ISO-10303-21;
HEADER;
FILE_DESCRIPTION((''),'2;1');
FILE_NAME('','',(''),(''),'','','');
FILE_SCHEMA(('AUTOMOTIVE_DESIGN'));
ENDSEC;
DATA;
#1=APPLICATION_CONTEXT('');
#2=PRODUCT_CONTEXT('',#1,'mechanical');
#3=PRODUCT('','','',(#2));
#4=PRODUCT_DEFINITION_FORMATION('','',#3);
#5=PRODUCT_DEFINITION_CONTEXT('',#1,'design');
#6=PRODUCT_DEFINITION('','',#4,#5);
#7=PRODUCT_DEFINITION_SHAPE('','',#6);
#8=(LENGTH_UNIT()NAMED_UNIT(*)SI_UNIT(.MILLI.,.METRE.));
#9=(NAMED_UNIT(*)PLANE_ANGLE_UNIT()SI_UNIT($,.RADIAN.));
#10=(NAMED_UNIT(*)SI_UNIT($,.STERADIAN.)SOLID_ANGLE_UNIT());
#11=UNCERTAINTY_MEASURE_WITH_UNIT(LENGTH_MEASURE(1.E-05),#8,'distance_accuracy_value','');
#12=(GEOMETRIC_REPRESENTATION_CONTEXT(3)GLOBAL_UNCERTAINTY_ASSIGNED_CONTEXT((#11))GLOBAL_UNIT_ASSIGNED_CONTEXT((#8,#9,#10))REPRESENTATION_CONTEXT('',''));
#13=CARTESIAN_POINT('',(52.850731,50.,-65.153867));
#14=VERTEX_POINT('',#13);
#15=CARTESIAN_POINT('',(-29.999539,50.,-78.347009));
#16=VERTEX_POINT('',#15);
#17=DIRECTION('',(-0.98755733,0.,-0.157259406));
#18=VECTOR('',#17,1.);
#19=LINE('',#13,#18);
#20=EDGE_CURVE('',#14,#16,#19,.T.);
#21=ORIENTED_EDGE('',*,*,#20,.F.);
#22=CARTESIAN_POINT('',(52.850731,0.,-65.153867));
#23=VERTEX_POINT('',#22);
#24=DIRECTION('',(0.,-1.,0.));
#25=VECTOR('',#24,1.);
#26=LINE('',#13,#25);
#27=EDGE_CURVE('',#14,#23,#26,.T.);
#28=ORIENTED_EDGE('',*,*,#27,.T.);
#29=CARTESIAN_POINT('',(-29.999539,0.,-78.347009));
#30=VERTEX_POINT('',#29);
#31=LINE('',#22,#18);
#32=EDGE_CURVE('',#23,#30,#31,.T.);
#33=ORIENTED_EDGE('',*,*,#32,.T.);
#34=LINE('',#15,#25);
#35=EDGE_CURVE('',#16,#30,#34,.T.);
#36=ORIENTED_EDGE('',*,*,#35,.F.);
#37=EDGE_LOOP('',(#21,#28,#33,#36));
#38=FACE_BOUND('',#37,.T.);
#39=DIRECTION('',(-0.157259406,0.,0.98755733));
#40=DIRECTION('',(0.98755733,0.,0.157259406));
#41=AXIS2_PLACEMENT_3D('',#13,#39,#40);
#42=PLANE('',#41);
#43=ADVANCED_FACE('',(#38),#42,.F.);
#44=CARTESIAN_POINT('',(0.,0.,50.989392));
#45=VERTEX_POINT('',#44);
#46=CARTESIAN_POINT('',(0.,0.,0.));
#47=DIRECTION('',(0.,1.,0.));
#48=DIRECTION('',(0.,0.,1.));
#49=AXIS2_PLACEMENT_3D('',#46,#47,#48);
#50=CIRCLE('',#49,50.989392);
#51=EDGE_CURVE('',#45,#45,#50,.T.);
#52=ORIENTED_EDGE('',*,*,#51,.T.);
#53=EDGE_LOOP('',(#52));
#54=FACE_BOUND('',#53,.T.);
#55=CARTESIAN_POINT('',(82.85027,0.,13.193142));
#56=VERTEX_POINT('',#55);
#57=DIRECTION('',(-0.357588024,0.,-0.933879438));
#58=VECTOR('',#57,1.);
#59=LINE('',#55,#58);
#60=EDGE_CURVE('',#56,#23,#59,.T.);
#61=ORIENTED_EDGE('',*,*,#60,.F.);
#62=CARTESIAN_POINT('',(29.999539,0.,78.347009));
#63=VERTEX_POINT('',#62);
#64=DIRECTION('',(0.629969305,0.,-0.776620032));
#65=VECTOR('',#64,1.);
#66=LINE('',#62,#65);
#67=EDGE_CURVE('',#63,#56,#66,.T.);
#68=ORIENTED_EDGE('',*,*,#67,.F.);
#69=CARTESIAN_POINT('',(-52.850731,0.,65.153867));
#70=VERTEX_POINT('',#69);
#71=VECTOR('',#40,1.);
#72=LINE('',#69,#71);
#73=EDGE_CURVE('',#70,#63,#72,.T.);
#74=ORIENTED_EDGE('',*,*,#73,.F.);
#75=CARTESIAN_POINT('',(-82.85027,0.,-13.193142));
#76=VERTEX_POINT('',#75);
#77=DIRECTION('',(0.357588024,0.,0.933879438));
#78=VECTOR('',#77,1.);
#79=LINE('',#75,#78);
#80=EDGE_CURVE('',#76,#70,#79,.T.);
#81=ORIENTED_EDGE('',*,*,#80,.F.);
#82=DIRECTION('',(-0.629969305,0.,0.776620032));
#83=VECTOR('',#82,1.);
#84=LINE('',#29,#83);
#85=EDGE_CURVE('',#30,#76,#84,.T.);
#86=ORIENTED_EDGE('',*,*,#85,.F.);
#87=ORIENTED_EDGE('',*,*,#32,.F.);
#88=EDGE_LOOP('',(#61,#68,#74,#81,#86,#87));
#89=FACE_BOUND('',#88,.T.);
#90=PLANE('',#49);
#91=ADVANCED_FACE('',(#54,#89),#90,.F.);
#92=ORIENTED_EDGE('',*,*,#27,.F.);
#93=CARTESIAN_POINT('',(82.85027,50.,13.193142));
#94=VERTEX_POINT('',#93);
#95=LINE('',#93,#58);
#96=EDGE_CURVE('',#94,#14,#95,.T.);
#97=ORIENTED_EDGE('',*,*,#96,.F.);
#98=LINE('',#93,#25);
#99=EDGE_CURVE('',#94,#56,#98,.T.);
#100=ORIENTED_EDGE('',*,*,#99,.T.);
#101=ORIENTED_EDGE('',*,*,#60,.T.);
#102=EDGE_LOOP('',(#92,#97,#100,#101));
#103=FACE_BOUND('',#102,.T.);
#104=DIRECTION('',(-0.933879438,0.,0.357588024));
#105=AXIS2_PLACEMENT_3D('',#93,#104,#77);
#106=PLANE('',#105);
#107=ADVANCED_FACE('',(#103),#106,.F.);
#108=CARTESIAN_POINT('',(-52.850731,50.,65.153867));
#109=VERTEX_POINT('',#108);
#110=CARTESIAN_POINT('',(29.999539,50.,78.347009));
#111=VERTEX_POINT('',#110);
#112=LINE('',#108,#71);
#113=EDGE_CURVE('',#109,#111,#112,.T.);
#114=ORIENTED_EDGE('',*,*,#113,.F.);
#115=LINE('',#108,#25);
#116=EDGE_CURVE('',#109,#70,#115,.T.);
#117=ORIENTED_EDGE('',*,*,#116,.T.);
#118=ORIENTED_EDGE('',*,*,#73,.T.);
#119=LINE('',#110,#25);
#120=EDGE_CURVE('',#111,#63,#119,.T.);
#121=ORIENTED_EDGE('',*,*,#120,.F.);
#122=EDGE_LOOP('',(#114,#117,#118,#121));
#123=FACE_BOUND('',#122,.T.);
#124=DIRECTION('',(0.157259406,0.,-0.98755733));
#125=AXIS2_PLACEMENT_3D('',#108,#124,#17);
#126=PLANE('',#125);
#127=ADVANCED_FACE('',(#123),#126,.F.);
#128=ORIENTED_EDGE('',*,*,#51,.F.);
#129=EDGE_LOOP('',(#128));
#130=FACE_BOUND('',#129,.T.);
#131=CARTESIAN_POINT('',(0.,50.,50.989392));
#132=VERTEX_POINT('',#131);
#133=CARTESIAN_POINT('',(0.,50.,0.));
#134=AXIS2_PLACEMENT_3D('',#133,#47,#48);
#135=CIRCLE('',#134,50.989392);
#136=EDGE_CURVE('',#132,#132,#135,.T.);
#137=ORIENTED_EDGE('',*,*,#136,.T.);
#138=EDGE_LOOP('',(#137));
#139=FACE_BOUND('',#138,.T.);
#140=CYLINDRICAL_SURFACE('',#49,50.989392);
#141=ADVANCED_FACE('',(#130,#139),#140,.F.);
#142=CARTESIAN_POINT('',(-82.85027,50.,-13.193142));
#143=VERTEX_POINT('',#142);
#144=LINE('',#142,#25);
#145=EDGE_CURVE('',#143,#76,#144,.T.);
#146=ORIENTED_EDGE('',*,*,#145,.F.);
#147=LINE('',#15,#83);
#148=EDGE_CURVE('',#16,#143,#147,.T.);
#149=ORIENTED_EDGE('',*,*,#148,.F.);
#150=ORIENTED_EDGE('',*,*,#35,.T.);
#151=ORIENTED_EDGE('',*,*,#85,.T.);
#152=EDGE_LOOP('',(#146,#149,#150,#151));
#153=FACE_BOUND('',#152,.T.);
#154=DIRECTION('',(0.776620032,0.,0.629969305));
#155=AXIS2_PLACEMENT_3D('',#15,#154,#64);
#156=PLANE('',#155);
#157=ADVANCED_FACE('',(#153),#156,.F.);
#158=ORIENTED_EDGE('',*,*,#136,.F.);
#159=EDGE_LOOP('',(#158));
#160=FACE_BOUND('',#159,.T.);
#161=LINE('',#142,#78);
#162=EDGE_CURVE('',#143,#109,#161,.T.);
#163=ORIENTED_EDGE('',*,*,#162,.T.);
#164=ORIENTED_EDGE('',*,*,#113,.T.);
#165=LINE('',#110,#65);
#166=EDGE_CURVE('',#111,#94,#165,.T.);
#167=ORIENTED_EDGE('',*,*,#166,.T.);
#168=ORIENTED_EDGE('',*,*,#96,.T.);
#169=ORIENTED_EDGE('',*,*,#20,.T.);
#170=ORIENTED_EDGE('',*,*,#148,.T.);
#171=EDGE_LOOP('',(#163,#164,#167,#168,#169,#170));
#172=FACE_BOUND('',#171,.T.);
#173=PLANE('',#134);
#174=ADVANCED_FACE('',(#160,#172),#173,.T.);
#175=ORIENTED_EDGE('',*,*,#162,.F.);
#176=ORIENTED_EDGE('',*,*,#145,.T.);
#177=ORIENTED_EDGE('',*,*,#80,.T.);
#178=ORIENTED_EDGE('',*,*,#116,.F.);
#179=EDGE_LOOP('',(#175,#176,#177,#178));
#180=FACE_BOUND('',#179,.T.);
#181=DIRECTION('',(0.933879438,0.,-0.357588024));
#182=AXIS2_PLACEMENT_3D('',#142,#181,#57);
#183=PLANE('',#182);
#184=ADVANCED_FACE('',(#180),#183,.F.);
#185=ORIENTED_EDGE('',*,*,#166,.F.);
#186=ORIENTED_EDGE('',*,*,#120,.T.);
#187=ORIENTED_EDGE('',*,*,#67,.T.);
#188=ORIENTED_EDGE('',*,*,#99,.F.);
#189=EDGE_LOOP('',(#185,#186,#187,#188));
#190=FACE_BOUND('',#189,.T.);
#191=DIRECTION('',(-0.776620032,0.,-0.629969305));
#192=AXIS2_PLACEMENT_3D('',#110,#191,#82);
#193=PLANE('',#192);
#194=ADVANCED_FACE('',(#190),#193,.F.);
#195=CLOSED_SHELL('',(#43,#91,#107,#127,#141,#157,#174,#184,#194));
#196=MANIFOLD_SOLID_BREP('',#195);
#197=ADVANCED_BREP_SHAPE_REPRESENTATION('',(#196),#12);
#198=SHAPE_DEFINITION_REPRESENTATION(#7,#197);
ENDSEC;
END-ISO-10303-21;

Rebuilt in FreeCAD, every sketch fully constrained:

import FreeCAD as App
import Part
import Sketcher

V = App.Vector
Q = App.Units.Quantity


def add_polygon(sketch, points):
    """Adds a closed chain of lines whose ends are joined by coincident constraints."""
    first, n = sketch.GeometryCount, len(points)
    for a, b in zip(points, points[1:] + points[:1]):
        sketch.addGeometry(Part.LineSegment(App.Vector(*a, 0), App.Vector(*b, 0)), False)
    for i in range(n):
        sketch.addConstraint(Sketcher.Constraint("Coincident", first + i, 2, first + (i + 1) % n, 1))

doc = App.newDocument("Part")
body = doc.addObject("PartDesign::Body", "Body")

# Sketch on XZ plane
sketch1 = body.newObject("Sketcher::SketchObject", "Sketch")
sketch1.AttachmentSupport = (doc.getObject("XZ_Plane"), [""])
sketch1.MapMode = "FlatFace"
add_polygon(sketch1, [(30, 78), (83, 13), (53, -65), (-30, -78), (-83, -13), (-53, 65)])  # lines 0-5
sketch1.addConstraint([
    Sketcher.Constraint("Symmetric", 0, 2, 3, 2, -1, 1),
    Sketcher.Constraint("Symmetric", 1, 2, 4, 2, -1, 1),
    Sketcher.Constraint("Symmetric", 2, 2, 5, 2, -1, 1),
    Sketcher.Constraint("Equal", 0, 1),
    Sketcher.Constraint("Equal", 1, 2),
    Sketcher.Constraint("DistanceX", 3, 2, 1, 2, Q("135.701001 mm")),
    Sketcher.Constraint("DistanceX", -1, 1, 0, 2, Q("82.85027 mm")),
    Sketcher.Constraint("DistanceX", 2, 2, -1, 1, Q("29.999539 mm")),
    Sketcher.Constraint("DistanceY", 2, 2, -1, 1, Q("78.347009 mm")),
])
pad1 = body.newObject("PartDesign::Pad", "Pad")
pad1.Profile = sketch1
pad1.Length = 50
pad1.Reversed = True

# Sketch on XZ plane
sketch2 = body.newObject("Sketcher::SketchObject", "Sketch001")
sketch2.AttachmentSupport = (doc.getObject("XZ_Plane"), [""])
sketch2.MapMode = "FlatFace"
sketch2.AttachmentOffset = App.Placement(V(0, 0, -50), App.Rotation())
sketch2.addGeometry(Part.Circle(V(0, 0, 0), V(0, 0, 1), 51), False)
sketch2.addConstraint([
    Sketcher.Constraint("Coincident", 0, 3, -1, 1),
    Sketcher.Constraint("Diameter", 0, Q("101.978784 mm")),
])
pocket1 = body.newObject("PartDesign::Pocket", "Pocket")
pocket1.Profile = sketch2
pocket1.Type = "ThroughAll"
pocket1.Reversed = True

doc.recompute()
